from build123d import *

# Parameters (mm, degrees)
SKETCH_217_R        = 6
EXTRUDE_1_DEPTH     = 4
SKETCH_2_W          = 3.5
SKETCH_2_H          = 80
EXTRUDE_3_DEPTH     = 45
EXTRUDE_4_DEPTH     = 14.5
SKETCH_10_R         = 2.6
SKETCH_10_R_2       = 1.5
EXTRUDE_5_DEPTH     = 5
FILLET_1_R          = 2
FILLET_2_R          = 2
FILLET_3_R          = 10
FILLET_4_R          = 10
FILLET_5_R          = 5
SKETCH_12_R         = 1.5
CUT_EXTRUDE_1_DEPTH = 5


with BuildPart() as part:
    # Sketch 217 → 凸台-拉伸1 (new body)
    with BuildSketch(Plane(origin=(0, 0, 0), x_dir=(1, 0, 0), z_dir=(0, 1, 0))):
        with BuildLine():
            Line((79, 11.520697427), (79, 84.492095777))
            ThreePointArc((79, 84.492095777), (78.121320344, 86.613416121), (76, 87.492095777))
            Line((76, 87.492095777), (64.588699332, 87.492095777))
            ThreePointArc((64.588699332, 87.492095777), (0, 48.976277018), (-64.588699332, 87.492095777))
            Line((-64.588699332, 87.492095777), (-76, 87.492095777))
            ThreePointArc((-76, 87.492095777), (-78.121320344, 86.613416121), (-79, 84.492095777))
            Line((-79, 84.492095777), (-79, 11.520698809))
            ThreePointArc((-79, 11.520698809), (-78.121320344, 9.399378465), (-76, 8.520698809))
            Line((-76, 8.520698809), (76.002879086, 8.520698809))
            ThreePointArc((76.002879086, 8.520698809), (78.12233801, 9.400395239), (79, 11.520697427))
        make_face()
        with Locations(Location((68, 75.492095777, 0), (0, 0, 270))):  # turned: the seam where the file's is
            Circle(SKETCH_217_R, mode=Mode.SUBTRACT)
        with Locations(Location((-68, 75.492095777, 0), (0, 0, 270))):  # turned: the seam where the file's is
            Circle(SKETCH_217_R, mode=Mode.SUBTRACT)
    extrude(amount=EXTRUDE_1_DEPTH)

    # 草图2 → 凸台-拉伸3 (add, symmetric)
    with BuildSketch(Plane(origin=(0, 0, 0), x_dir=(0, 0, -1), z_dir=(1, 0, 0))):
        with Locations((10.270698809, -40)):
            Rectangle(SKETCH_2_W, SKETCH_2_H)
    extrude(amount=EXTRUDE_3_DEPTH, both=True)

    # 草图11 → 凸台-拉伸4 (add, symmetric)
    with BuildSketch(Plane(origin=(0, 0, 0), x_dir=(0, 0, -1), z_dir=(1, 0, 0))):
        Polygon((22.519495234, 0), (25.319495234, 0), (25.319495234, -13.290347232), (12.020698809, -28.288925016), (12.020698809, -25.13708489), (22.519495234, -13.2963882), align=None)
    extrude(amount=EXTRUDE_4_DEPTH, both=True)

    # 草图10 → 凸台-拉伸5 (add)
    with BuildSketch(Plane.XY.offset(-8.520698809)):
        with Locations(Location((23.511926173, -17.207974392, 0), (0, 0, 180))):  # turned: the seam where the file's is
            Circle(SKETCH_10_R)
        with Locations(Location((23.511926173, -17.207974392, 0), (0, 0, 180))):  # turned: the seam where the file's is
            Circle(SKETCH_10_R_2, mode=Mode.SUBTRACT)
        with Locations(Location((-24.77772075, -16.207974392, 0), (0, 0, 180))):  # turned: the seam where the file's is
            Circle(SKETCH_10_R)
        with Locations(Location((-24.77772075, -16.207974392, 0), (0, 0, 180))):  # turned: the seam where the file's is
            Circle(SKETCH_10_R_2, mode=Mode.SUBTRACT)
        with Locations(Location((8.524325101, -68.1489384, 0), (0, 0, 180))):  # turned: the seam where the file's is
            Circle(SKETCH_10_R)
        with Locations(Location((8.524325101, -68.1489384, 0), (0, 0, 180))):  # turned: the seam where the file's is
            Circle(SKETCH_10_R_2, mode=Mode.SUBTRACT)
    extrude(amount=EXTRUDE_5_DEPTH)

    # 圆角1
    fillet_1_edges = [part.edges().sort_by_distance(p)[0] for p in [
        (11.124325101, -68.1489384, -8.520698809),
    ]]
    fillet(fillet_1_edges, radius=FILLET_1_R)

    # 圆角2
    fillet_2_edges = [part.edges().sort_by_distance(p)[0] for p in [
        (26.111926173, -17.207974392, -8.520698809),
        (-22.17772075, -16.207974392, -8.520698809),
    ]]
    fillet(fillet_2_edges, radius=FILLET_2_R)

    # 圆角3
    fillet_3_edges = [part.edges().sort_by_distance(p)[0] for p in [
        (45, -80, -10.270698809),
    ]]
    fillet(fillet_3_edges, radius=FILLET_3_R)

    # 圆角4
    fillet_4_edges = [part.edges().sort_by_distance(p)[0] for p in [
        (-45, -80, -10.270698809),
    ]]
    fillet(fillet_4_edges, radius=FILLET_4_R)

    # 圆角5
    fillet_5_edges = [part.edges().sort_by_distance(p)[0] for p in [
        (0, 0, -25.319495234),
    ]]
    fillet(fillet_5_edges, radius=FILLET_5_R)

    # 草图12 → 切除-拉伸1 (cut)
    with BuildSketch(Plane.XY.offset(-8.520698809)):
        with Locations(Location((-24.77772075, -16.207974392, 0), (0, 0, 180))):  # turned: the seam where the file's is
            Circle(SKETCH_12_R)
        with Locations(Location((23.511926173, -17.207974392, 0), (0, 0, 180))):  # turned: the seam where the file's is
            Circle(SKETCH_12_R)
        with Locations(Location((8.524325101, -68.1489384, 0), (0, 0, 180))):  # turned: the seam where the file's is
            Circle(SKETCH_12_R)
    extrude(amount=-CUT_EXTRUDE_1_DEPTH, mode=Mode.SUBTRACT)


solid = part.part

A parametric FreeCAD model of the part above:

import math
import FreeCAD as App
import Part
import Sketcher
from FreeCAD import Vector


def edges_at(feature, points):
    """Names of the edges that pass closest to the given points."""
    edges = feature.Shape.Edges
    near = lambda p: min(range(len(edges)), key=lambda i: edges[i].distToShape(Part.Vertex(*p))[0])
    return sorted({f"Edge{near(p) + 1}" for p in points})

doc = App.newDocument("Part")
body = doc.addObject("PartDesign::Body", "Body")

sketch1 = body.newObject("Sketcher::SketchObject", "Sketch")
sketch1.AttachmentSupport = (doc.getObject("XZ_Plane"), [""])
sketch1.MapMode = "FlatFace"
sketch1.addGeometry([
    Part.LineSegment(Vector(79, -11.5, 0), Vector(79, -84.5, 0)),
    Part.ArcOfCircle(Part.Circle(Vector(76, -84.5, 0), Vector(0, 0, 1), 3), math.radians(-90), math.radians(0)),
    Part.LineSegment(Vector(76, -87.5, 0), Vector(64.6, -87.5, 0)),
    Part.ArcOfCircle(Part.Circle(Vector(0, -122.4, 0), Vector(0, 0, 1), 73.4), math.radians(28), math.radians(152)),
    Part.LineSegment(Vector(-64.6, -87.5, 0), Vector(-76, -87.5, 0)),
    Part.ArcOfCircle(Part.Circle(Vector(-76, -84.5, 0), Vector(0, 0, 1), 3), math.radians(180), math.radians(270)),
    Part.LineSegment(Vector(-79, -84.5, 0), Vector(-79, -11.5, 0)),
    Part.ArcOfCircle(Part.Circle(Vector(-76, -11.5, 0), Vector(0, 0, 1), 3), math.radians(90), math.radians(180)),
    Part.LineSegment(Vector(-76, -8.5, 0), Vector(76, -8.5, 0)),
    Part.ArcOfCircle(Part.Circle(Vector(76, -11.5, 0), Vector(0, 0, 1), 3), math.radians(0), math.radians(90)),
    Part.Circle(Vector(-68, -75.5, 0), Vector(0, 0, 1), 6),
    Part.Circle(Vector(68, -75.5, 0), Vector(0, 0, 1), 6),
], False)
sketch1.addConstraint([
    Sketcher.Constraint("Tangent", 0, 2, 1, 2),
    Sketcher.Constraint("Tangent", 1, 1, 2, 1),
    Sketcher.Constraint("Coincident", 2, 2, 3, 1),
    Sketcher.Constraint("Coincident", 3, 2, 4, 1),
    Sketcher.Constraint("Tangent", 4, 2, 5, 2),
    Sketcher.Constraint("Tangent", 5, 1, 6, 1),
    Sketcher.Constraint("Tangent", 6, 2, 7, 2),
    Sketcher.Constraint("Tangent", 7, 1, 8, 1),
    Sketcher.Constraint("Coincident", 8, 2, 9, 2),
    Sketcher.Constraint("Tangent", 9, 1, 0, 1),
    Sketcher.Constraint("Vertical", 0),
    Sketcher.Constraint("Horizontal", 2),
    Sketcher.Constraint("Horizontal", 4),
    Sketcher.Constraint("Vertical", 6),
    Sketcher.Constraint("Horizontal", 8),
    Sketcher.Constraint("Equal", 1, 5),
    Sketcher.Constraint("Equal", 5, 7),
    Sketcher.Constraint("Equal", 7, 9),
    Sketcher.Constraint("Equal", 10, 11),
    Sketcher.Constraint("Symmetric", 1, 3, 5, 3, -2),
    Sketcher.Constraint("Symmetric", 10, 3, 11, 3, -2),
    Sketcher.Constraint("PointOnObject", 3, 3, -2),
    Sketcher.Constraint("Diameter", 10, 12.0),
    Sketcher.Constraint("Radius", 1, 3.0),
    Sketcher.Constraint("DistanceX", -1, 1, 1, 3, 76.0),
    Sketcher.Constraint("DistanceX", 10, 3, -1, 1, 68.0),
    Sketcher.Constraint("DistanceY", 5, 3, 10, 3, 9.0),
    Sketcher.Constraint("Radius", 3, 73.413581),
    Sketcher.Constraint("DistanceX", 2, 2, 2, 1, 11.411301),
    Sketcher.Constraint("DistanceY", 0, 2, 0, 1, 72.971398),
    Sketcher.Constraint("DistanceX", 8, 1, 8, 2, 152.002879),
    Sketcher.Constraint("DistanceY", 7, 3, -1, 1, 11.520699),
])
pad1 = body.newObject("PartDesign::Pad", "Pad")
pad1.Profile = sketch1
pad1.Length = 4
pad1.Reversed = True

sketch2 = body.newObject("Sketcher::SketchObject", "Sketch001")
sketch2.AttachmentSupport = (doc.getObject("YZ_Plane"), [""])
sketch2.MapMode = "FlatFace"
sketch2.addGeometry([
    Part.LineSegment(Vector(0, -8.5, 0), Vector(-80, -8.5, 0)),
    Part.LineSegment(Vector(-80, -8.5, 0), Vector(-80, -12, 0)),
    Part.LineSegment(Vector(-80, -12, 0), Vector(0, -12, 0)),
    Part.LineSegment(Vector(0, -12, 0), Vector(0, -8.5, 0)),
], False)
sketch2.addConstraint([
    Sketcher.Constraint("Coincident", 0, 2, 1, 1),
    Sketcher.Constraint("Coincident", 1, 2, 2, 1),
    Sketcher.Constraint("Coincident", 2, 2, 3, 1),
    Sketcher.Constraint("Coincident", 3, 2, 0, 1),
    Sketcher.Constraint("Horizontal", 0),
    Sketcher.Constraint("Vertical", 1),
    Sketcher.Constraint("Horizontal", 2),
    Sketcher.Constraint("Vertical", 3),
    Sketcher.Constraint("PointOnObject", 2, 2, -2),
    Sketcher.Constraint("DistanceX", 0, 2, 0, 1, 80.0),
    Sketcher.Constraint("DistanceY", 1, 2, 1, 1, 3.5),
    Sketcher.Constraint("DistanceY", 0, 2, -1, 1, 8.520699),
])
pad2 = body.newObject("PartDesign::Pad", "Pad001")
pad2.Profile = sketch2
pad2.Length = 90
pad2.Midplane = True

sketch3 = body.newObject("Sketcher::SketchObject", "Sketch002")
sketch3.AttachmentSupport = (doc.getObject("YZ_Plane"), [""])
sketch3.MapMode = "FlatFace"
sketch3.addGeometry([
    Part.LineSegment(Vector(0, -25.3, 0), Vector(0, -22.5, 0)),
    Part.LineSegment(Vector(0, -22.5, 0), Vector(-13.3, -22.5, 0)),
    Part.LineSegment(Vector(-13.3, -22.5, 0), Vector(-25.1, -12, 0)),
    Part.LineSegment(Vector(-25.1, -12, 0), Vector(-28.3, -12, 0)),
    Part.LineSegment(Vector(-28.3, -12, 0), Vector(-13.3, -25.3, 0)),
    Part.LineSegment(Vector(-13.3, -25.3, 0), Vector(0, -25.3, 0)),
], False)
sketch3.addConstraint([
    Sketcher.Constraint("Coincident", 0, 2, 1, 1),
    Sketcher.Constraint("Coincident", 1, 2, 2, 1),
    Sketcher.Constraint("Coincident", 2, 2, 3, 1),
    Sketcher.Constraint("Coincident", 3, 2, 4, 1),
    Sketcher.Constraint("Coincident", 4, 2, 5, 1),
    Sketcher.Constraint("Coincident", 5, 2, 0, 1),
    Sketcher.Constraint("Vertical", 0),
    Sketcher.Constraint("Horizontal", 1),
    Sketcher.Constraint("Horizontal", 3),
    Sketcher.Constraint("Horizontal", 5),
    Sketcher.Constraint("PointOnObject", 0, 2, -2),
    Sketcher.Constraint("Parallel", 2, 4),
    Sketcher.Constraint("DistanceY", 0, 1, 0, 2, 2.8),
    Sketcher.Constraint("DistanceX", 1, 2, 1, 1, 13.296388),
    Sketcher.Constraint("DistanceX", 3, 2, 3, 1, 3.15184),
    Sketcher.Constraint("DistanceY", 2, 2, -1, 1, 12.020699),
    Sketcher.Constraint("Distance", 2, 15.82488),
    Sketcher.Constraint("Distance", 4, 20.045332),
])
pad3 = body.newObject("PartDesign::Pad", "Pad002")
pad3.Profile = sketch3
pad3.Length = 29
pad3.Midplane = True

sketch4 = body.newObject("Sketcher::SketchObject", "Sketch003")
sketch4.AttachmentSupport = (doc.getObject("XY_Plane"), [""])
sketch4.MapMode = "FlatFace"
sketch4.AttachmentOffset = App.Placement(Vector(0, 0, -8.520699), App.Rotation())
sketch4.addGeometry([
    Part.Circle(Vector(23.5, -17.2, 0), Vector(0, 0, 1), 2.6),
    Part.Circle(Vector(23.5, -17.2, 0), Vector(0, 0, 1), 1.5),
    Part.Circle(Vector(-24.8, -16.2, 0), Vector(0, 0, 1), 2.6),
    Part.Circle(Vector(-24.8, -16.2, 0), Vector(0, 0, 1), 1.5),
    Part.Circle(Vector(8.5, -68.1, 0), Vector(0, 0, 1), 2.6),
    Part.Circle(Vector(8.5, -68.1, 0), Vector(0, 0, 1), 1.5),
], False)
sketch4.addConstraint([
    Sketcher.Constraint("Coincident", 1, 3, 0, 3),
    Sketcher.Constraint("Coincident", 3, 3, 2, 3),
    Sketcher.Constraint("Coincident", 5, 3, 4, 3),
    Sketcher.Constraint("Equal", 0, 2),
    Sketcher.Constraint("Equal", 1, 3),
    Sketcher.Constraint("Equal", 2, 4),
    Sketcher.Constraint("Equal", 3, 5),
    Sketcher.Constraint("Diameter", 1, 3.0),
    Sketcher.Constraint("Diameter", 0, 5.2),
    Sketcher.Constraint("DistanceY", 0, 3, 2, 3, 1.0),
    Sketcher.Constraint("DistanceX", 4, 3, 0, 3, 14.987601),
    Sketcher.Constraint("DistanceX", 2, 3, -1, 1, 24.777721),
    Sketcher.Constraint("DistanceY", 4, 3, -1, 1, 68.148938),
    Sketcher.Constraint("DistanceX", -1, 1, 0, 3, 23.511926),
    Sketcher.Constraint("DistanceY", 0, 3, -1, 1, 17.207974),
])
pad4 = body.newObject("PartDesign::Pad", "Pad003")
pad4.Profile = sketch4
pad4.Length = 5
doc.recompute()

fillet = body.newObject("PartDesign::Fillet", "Fillet")
fillet.Base = (pad4, edges_at(pad4, [(11.124, -68.149, -8.521)]))
fillet.Radius = 2
doc.recompute()

fillet2 = body.newObject("PartDesign::Fillet", "Fillet001")
fillet2.Base = (fillet, edges_at(fillet, [(26.112, -17.208, -8.521), (-22.178, -16.208, -8.521)]))
fillet2.Radius = 2
doc.recompute()

fillet3 = body.newObject("PartDesign::Fillet", "Fillet002")
fillet3.Base = (fillet2, edges_at(fillet2, [(45, -80, -10.271)]))
fillet3.Radius = 10
doc.recompute()

fillet4 = body.newObject("PartDesign::Fillet", "Fillet003")
fillet4.Base = (fillet3, edges_at(fillet3, [(-45, -80, -10.271)]))
fillet4.Radius = 10
doc.recompute()

fillet5 = body.newObject("PartDesign::Fillet", "Fillet004")
fillet5.Base = (fillet4, edges_at(fillet4, [(0, 0, -25.319)]))
fillet5.Radius = 5

sketch5 = body.newObject("Sketcher::SketchObject", "Sketch004")
sketch5.AttachmentSupport = (doc.getObject("XY_Plane"), [""])
sketch5.MapMode = "FlatFace"
sketch5.AttachmentOffset = App.Placement(Vector(0, 0, -8.520699), App.Rotation())
sketch5.addGeometry([
    Part.Circle(Vector(-24.8, -16.2, 0), Vector(0, 0, 1), 1.5),
    Part.Circle(Vector(23.5, -17.2, 0), Vector(0, 0, 1), 1.5),
    Part.Circle(Vector(8.5, -68.1, 0), Vector(0, 0, 1), 1.5),
], False)
sketch5.addConstraint([
    Sketcher.Constraint("Equal", 0, 1),
    Sketcher.Constraint("Equal", 1, 2),
    Sketcher.Constraint("Diameter", 0, 3.0),
    Sketcher.Constraint("DistanceY", 1, 3, 0, 3, 1.0),
    Sketcher.Constraint("DistanceX", 2, 3, 1, 3, 14.987601),
    Sketcher.Constraint("DistanceX", 0, 3, -1, 1, 24.777721),
    Sketcher.Constraint("DistanceY", 2, 3, -1, 1, 68.148938),
    Sketcher.Constraint("DistanceY", 0, 3, -1, 1, 16.207974),
    Sketcher.Constraint("DistanceX", -1, 1, 1, 3, 23.511926),
])
pocket1 = body.newObject("PartDesign::Pocket", "Pocket")
pocket1.Profile = sketch5
pocket1.Length = 5

doc.recompute()
